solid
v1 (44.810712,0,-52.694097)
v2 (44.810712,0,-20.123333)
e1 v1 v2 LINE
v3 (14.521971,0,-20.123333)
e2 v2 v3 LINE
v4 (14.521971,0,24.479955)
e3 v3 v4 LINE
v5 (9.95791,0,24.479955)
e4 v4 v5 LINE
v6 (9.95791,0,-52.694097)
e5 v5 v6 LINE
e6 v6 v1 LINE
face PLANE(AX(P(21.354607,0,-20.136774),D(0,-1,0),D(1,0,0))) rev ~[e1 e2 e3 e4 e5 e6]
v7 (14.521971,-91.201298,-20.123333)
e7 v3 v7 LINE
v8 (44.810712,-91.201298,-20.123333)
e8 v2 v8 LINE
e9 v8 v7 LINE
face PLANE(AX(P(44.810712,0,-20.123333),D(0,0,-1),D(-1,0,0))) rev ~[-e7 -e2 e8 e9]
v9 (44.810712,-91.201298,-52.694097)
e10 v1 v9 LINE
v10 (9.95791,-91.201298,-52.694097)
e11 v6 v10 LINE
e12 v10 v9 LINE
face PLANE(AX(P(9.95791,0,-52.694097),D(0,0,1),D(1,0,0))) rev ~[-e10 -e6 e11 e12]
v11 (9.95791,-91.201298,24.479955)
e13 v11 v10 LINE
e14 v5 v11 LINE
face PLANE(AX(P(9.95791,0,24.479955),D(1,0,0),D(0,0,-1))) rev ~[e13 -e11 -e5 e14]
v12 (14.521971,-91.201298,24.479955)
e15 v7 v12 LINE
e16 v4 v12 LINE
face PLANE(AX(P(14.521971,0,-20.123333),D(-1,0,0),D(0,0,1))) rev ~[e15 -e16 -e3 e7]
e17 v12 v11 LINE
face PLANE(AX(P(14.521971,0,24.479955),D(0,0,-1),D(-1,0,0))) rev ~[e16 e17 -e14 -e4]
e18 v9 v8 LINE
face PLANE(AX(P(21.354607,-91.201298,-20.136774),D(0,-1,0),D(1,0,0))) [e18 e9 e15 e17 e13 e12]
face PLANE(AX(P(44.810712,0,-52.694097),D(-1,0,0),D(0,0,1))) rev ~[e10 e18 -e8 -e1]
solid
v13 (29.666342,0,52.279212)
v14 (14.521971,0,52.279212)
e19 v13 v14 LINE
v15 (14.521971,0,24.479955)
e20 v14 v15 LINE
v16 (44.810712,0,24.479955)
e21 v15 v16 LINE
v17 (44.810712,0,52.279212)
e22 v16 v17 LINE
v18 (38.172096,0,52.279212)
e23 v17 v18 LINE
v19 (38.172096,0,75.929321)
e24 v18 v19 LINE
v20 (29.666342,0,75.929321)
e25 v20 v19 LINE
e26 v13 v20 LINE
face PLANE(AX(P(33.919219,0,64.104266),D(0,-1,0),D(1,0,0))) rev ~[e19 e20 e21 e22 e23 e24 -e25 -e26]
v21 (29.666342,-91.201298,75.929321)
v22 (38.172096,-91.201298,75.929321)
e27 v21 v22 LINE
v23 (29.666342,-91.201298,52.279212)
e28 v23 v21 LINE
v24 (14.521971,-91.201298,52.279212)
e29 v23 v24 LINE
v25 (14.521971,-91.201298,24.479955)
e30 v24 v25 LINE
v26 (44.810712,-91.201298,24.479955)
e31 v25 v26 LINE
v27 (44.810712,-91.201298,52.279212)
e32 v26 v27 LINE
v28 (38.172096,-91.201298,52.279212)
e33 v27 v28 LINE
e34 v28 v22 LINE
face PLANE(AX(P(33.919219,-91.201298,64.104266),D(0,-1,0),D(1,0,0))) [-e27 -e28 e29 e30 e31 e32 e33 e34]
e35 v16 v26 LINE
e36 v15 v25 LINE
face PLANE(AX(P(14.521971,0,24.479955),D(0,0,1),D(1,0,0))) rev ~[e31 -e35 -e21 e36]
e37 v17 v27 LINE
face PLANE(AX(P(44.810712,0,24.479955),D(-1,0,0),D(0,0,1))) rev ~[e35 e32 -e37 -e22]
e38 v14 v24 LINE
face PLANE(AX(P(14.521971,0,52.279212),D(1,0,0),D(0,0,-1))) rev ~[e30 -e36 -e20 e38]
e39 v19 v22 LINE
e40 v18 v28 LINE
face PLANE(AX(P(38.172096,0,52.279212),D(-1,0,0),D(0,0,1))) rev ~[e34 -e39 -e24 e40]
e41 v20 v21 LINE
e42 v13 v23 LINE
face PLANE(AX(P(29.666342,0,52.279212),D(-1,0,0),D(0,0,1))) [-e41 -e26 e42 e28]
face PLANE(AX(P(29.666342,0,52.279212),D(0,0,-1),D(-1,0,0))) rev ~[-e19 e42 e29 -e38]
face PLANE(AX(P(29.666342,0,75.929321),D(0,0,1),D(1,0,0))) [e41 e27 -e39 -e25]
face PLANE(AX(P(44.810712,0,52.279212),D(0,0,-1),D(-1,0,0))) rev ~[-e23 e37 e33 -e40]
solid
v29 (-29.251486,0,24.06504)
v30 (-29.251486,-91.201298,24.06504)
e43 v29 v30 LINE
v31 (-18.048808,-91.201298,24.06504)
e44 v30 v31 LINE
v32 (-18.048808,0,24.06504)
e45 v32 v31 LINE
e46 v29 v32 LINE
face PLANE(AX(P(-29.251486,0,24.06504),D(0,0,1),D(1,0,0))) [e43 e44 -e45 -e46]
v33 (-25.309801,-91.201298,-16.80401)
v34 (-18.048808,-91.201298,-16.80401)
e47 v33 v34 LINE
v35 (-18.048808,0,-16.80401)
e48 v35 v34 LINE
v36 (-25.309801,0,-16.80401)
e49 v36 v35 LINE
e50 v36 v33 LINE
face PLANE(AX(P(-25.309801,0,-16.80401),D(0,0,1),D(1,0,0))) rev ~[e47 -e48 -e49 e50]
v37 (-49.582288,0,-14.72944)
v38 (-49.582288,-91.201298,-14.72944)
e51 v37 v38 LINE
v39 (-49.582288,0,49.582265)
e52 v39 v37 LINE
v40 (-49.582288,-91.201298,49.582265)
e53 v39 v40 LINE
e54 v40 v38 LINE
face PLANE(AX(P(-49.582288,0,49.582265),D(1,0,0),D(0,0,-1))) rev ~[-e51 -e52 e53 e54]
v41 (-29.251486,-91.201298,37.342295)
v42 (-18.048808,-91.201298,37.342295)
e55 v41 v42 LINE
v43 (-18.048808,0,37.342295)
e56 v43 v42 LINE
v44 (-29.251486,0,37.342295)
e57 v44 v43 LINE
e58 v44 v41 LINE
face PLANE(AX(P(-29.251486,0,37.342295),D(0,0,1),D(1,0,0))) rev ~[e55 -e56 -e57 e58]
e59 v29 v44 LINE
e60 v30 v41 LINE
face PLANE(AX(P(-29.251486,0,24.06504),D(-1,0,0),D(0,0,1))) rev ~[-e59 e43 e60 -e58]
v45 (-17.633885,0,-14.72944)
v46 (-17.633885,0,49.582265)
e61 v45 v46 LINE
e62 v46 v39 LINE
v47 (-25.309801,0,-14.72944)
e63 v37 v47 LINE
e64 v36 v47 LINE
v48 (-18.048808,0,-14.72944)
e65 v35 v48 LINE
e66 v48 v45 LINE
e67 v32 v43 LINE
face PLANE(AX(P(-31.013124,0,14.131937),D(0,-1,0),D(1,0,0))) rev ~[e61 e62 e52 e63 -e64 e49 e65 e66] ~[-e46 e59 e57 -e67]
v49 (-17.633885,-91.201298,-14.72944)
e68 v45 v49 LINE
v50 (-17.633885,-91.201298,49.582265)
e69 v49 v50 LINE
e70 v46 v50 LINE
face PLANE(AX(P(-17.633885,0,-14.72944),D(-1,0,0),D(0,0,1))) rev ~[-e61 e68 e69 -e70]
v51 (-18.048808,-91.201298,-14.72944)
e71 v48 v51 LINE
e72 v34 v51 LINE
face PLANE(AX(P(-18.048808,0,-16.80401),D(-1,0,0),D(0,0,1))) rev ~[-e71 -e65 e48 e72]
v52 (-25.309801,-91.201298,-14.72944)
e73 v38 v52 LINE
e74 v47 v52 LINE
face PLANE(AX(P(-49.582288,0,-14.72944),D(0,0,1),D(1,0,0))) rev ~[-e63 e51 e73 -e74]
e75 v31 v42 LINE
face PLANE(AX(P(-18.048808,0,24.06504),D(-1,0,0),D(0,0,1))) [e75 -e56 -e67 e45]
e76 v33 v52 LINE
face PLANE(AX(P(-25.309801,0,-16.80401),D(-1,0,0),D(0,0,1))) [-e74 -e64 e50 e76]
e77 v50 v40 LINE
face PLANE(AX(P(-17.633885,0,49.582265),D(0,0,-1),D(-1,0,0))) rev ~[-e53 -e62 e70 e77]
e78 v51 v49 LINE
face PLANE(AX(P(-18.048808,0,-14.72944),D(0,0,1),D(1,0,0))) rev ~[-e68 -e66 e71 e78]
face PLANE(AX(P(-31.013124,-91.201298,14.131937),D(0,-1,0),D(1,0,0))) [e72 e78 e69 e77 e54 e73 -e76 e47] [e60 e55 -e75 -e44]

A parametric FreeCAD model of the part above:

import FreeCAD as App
import Part
import Sketcher
from FreeCAD import Vector


def add_polygon(sketch, points):
    """Adds a closed chain of lines whose ends are joined by coincident constraints."""
    first, n = sketch.GeometryCount, len(points)
    for a, b in zip(points, points[1:] + points[:1]):
        sketch.addGeometry(Part.LineSegment(App.Vector(*a, 0), App.Vector(*b, 0)), False)
    for i in range(n):
        sketch.addConstraint(Sketcher.Constraint("Coincident", first + i, 2, first + (i + 1) % n, 1))

doc = App.newDocument("Part")
params = doc.addObject("Spreadsheet::Sheet", "Params")
for row, (alias, value) in enumerate([
    ("pad1_length", "91.201298 mm"),
    ("pad2_length", "91.201298 mm"),
    ("pad3_length", "91.201298 mm"),
], start=1):
    params.set(f"A{row}", alias)
    params.set(f"B{row}", "=" + value)
    params.setAlias(f"B{row}", alias)

body = doc.addObject("PartDesign::Body", "Body")

# Sketch on XZ plane
sketch1 = body.newObject("Sketcher::SketchObject", "Sketch")
sketch1.AttachmentSupport = (doc.getObject("XZ_Plane"), [""])
sketch1.MapMode = "FlatFace"
add_polygon(sketch1, [(30, 76), (30, 52), (15, 52), (15, 24), (45, 24), (45, 52), (38, 52), (38, 76)])  # lines 0-7
sketch1.addConstraint([
    Sketcher.Constraint("Vertical", 0),
    Sketcher.Constraint("Horizontal", 1),
    Sketcher.Constraint("Vertical", 2),
    Sketcher.Constraint("Horizontal", 3),
    Sketcher.Constraint("Vertical", 4),
    Sketcher.Constraint("Horizontal", 5),
    Sketcher.Constraint("Vertical", 6),
    Sketcher.Constraint("Horizontal", 7),
    Sketcher.Constraint("Horizontal", 1, 2, 4, 2),
    Sketcher.Constraint("DistanceX", 1, 2, 1, 1, 15.14437),
    Sketcher.Constraint("DistanceX", 3, 1, 3, 2, 30.288741),
    Sketcher.Constraint("DistanceY", 0, 2, 0, 1, 23.65011),
    Sketcher.Constraint("DistanceX", 5, 2, 5, 1, 6.638616),
    Sketcher.Constraint("DistanceY", 2, 2, 2, 1, 27.799256),
    Sketcher.Constraint("DistanceX", -1, 1, 0, 2, 29.666342),
    Sketcher.Constraint("DistanceY", -1, 1, 0, 2, 52.279212),
])
pad1 = body.newObject("PartDesign::Pad", "Pad")
pad1.Profile = sketch1
pad1.setExpression("Length", "Params.pad1_length")
body2 = doc.addObject("PartDesign::Body", "Body001")

# Sketch on XZ plane
sketch2 = body2.newObject("Sketcher::SketchObject", "Sketch001")
sketch2.AttachmentSupport = (doc.getObject("XZ_Plane001"), [""])
sketch2.MapMode = "FlatFace"
add_polygon(sketch2, [(-49.58, -14.73), (-25.31, -14.73), (-25.31, -16.8), (-18.05, -16.8), (-18.05, -14.73), (-17.63, -14.73), (-17.63, 49.58), (-49.58, 49.58)])  # lines 0-7
add_polygon(sketch2, [(-18.05, 24.07), (-29.25, 24.07), (-29.25, 37.34), (-18.05, 37.34)])  # lines 8-11
sketch2.addConstraint([
    Sketcher.Constraint("Horizontal", 0),
    Sketcher.Constraint("Vertical", 1),
    Sketcher.Constraint("Horizontal", 2),
    Sketcher.Constraint("Vertical", 3),
    Sketcher.Constraint("Horizontal", 4),
    Sketcher.Constraint("Vertical", 5),
    Sketcher.Constraint("Horizontal", 6),
    Sketcher.Constraint("Vertical", 7),
    Sketcher.Constraint("Horizontal", 8),
    Sketcher.Constraint("Vertical", 9),
    Sketcher.Constraint("Horizontal", 10),
    Sketcher.Constraint("Vertical", 11),
    Sketcher.Constraint("Horizontal", 0, 2, 3, 2),
    Sketcher.Constraint("Vertical", 3, 2, 10, 2),
    Sketcher.Constraint("DistanceX", 8, 2, 8, 1, 11.202678),
    Sketcher.Constraint("DistanceY", 1, 2, 1, 1, 2.074569),
    Sketcher.Constraint("DistanceX", 0, 2, -1, 1, 25.309801),
    Sketcher.Constraint("DistanceX", 8, 2, 5, 2, 11.617601),
    Sketcher.Constraint("DistanceX", 6, 2, 8, 2, 20.330802),
    Sketcher.Constraint("DistanceX", 0, 1, 0, 2, 24.272487),
    Sketcher.Constraint("DistanceY", 5, 1, 5, 2, 64.311706),
    Sketcher.Constraint("DistanceY", 9, 1, 9, 2, 13.277255),
    Sketcher.Constraint("DistanceY", 0, 2, -1, 1, 14.72944),
    Sketcher.Constraint("DistanceY", -1, 1, 8, 2, 24.06504),
])
pad2 = body2.newObject("PartDesign::Pad", "Pad001")
pad2.Profile = sketch2
pad2.setExpression("Length", "Params.pad2_length")
body3 = doc.addObject("PartDesign::Body", "Body002")

# Sketch on XZ plane
sketch3 = body3.newObject("Sketcher::SketchObject", "Sketch002")
sketch3.AttachmentSupport = (doc.getObject("XZ_Plane002"), [""])
sketch3.MapMode = "FlatFace"
add_polygon(sketch3, [(44.8, -52.7), (44.8, -20.1), (14.5, -20.1), (14.5, 24.5), (10, 24.5), (10, -52.7)])  # lines 0-5
sketch3.addConstraint([
    Sketcher.Constraint("Vertical", 0),
    Sketcher.Constraint("Horizontal", 1),
    Sketcher.Constraint("Vertical", 2),
    Sketcher.Constraint("Horizontal", 3),
    Sketcher.Constraint("Vertical", 4),
    Sketcher.Constraint("Horizontal", 5),
    Sketcher.Constraint("DistanceX", 1, 2, 1, 1, 30.288741),
    Sketcher.Constraint("DistanceX", 3, 2, 3, 1, 4.564062),
    Sketcher.Constraint("DistanceY", 2, 1, 2, 2, 44.603288),
    Sketcher.Constraint("DistanceY", 0, 1, 0, 2, 32.570764),
    Sketcher.Constraint("DistanceX", -1, 1, 1, 2, 14.521971),
    Sketcher.Constraint("DistanceY", 0, 2, -1, 1, 20.123333),
])
pad3 = body3.newObject("PartDesign::Pad", "Pad002")
pad3.Profile = sketch3
pad3.setExpression("Length", "Params.pad3_length")

doc.recompute()
